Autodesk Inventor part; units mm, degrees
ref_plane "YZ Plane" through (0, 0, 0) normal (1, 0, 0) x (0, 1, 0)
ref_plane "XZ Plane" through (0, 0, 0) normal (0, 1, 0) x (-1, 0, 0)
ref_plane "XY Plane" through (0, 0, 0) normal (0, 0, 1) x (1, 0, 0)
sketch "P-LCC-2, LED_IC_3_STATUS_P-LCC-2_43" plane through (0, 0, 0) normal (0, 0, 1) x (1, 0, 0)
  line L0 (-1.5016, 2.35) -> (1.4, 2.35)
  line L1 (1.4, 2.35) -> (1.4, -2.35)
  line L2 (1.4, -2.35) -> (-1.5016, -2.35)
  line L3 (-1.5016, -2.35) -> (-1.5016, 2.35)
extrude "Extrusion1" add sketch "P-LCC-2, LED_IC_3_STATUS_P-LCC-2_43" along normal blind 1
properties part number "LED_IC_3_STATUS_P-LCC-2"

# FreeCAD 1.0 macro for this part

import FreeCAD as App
import Part
import Sketcher


def add_polygon(sketch, points):
    """Adds a closed chain of lines whose ends are joined by coincident constraints."""
    first, n = sketch.GeometryCount, len(points)
    for a, b in zip(points, points[1:] + points[:1]):
        sketch.addGeometry(Part.LineSegment(App.Vector(*a, 0), App.Vector(*b, 0)), False)
    for i in range(n):
        sketch.addConstraint(Sketcher.Constraint("Coincident", first + i, 2, first + (i + 1) % n, 1))

doc = App.newDocument("Part")
body = doc.addObject("PartDesign::Body", "Body")

# Sketch on XY plane
sketch1 = body.newObject("Sketcher::SketchObject", "Sketch")
sketch1.AttachmentSupport = (doc.getObject("XY_Plane"), [""])
sketch1.MapMode = "FlatFace"
add_polygon(sketch1, [(1.4, 2.4), (-1.5, 2.4), (-1.5, -2.4), (1.4, -2.4)])  # lines 0-3
sketch1.addConstraint([
    Sketcher.Constraint("Horizontal", 0),
    Sketcher.Constraint("Vertical", 1),
    Sketcher.Constraint("Horizontal", 2),
    Sketcher.Constraint("Vertical", 3),
    Sketcher.Constraint("DistanceY", 1, 2, 1, 1, 4.7),
    Sketcher.Constraint("DistanceX", -1, 1, 2, 2, 1.4),
    Sketcher.Constraint("DistanceY", -1, 1, 0, 2, 2.35),
    Sketcher.Constraint("DistanceX", 0, 2, 0, 1, 2.9016),
])
pad1 = body.newObject("PartDesign::Pad", "Pad")
pad1.Profile = sketch1
pad1.Length = 1

doc.recompute()
